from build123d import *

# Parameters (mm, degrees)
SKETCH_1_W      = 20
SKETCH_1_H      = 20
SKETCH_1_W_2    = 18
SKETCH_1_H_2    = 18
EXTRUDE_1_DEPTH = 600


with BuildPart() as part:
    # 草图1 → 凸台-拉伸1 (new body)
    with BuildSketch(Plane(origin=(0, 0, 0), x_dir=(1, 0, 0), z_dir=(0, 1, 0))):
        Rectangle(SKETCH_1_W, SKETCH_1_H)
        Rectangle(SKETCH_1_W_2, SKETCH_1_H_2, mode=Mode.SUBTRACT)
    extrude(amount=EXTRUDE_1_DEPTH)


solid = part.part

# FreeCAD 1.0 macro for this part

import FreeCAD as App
import Part
import Sketcher
from FreeCAD import Vector
Q = App.Units.Quantity


def add_polygon(sketch, points):
    """Adds a closed chain of lines whose ends are joined by coincident constraints."""
    first, n = sketch.GeometryCount, len(points)
    for a, b in zip(points, points[1:] + points[:1]):
        sketch.addGeometry(Part.LineSegment(App.Vector(*a, 0), App.Vector(*b, 0)), False)
    for i in range(n):
        sketch.addConstraint(Sketcher.Constraint("Coincident", first + i, 2, first + (i + 1) % n, 1))

doc = App.newDocument("Part")
body = doc.addObject("PartDesign::Body", "Body")

sketch1 = body.newObject("Sketcher::SketchObject", "Sketch")
sketch1.AttachmentSupport = (doc.getObject("XZ_Plane"), [""])
sketch1.MapMode = "FlatFace"
add_polygon(sketch1, [(-10, -10), (-10, 10), (10, 10), (10, -10)])
add_polygon(sketch1, [(9, 9), (-9, 9), (-9, -9), (9, -9)])
sketch1.addConstraint(Sketcher.Constraint("Vertical", 0))
sketch1.addConstraint(Sketcher.Constraint("Horizontal", 1))
sketch1.addConstraint(Sketcher.Constraint("Vertical", 2))
sketch1.addConstraint(Sketcher.Constraint("Horizontal", 3))
sketch1.addConstraint(Sketcher.Constraint("Horizontal", 4))
sketch1.addConstraint(Sketcher.Constraint("Vertical", 5))
sketch1.addConstraint(Sketcher.Constraint("Horizontal", 6))
sketch1.addConstraint(Sketcher.Constraint("Vertical", 7))
sketch1.addConstraint(Sketcher.Constraint("Symmetric", 0, 2, 2, 2, -1, 1))
sketch1.addConstraint(Sketcher.Constraint("Symmetric", 4, 2, 6, 2, -1, 1))
sketch1.addConstraint(Sketcher.Constraint("Equal", 3, 0))
sketch1.addConstraint(Sketcher.Constraint("Equal", 6, 5))
sketch1.addConstraint(Sketcher.Constraint("DistanceX", 1, 1, 1, 2, Q("20 mm")))
sketch1.addConstraint(Sketcher.Constraint("DistanceX", 4, 2, 4, 1, Q("18 mm")))
pad1 = body.newObject("PartDesign::Pad", "Pad")
pad1.Profile = sketch1
pad1.Length = 600
pad1.Reversed = True

doc.recompute()
